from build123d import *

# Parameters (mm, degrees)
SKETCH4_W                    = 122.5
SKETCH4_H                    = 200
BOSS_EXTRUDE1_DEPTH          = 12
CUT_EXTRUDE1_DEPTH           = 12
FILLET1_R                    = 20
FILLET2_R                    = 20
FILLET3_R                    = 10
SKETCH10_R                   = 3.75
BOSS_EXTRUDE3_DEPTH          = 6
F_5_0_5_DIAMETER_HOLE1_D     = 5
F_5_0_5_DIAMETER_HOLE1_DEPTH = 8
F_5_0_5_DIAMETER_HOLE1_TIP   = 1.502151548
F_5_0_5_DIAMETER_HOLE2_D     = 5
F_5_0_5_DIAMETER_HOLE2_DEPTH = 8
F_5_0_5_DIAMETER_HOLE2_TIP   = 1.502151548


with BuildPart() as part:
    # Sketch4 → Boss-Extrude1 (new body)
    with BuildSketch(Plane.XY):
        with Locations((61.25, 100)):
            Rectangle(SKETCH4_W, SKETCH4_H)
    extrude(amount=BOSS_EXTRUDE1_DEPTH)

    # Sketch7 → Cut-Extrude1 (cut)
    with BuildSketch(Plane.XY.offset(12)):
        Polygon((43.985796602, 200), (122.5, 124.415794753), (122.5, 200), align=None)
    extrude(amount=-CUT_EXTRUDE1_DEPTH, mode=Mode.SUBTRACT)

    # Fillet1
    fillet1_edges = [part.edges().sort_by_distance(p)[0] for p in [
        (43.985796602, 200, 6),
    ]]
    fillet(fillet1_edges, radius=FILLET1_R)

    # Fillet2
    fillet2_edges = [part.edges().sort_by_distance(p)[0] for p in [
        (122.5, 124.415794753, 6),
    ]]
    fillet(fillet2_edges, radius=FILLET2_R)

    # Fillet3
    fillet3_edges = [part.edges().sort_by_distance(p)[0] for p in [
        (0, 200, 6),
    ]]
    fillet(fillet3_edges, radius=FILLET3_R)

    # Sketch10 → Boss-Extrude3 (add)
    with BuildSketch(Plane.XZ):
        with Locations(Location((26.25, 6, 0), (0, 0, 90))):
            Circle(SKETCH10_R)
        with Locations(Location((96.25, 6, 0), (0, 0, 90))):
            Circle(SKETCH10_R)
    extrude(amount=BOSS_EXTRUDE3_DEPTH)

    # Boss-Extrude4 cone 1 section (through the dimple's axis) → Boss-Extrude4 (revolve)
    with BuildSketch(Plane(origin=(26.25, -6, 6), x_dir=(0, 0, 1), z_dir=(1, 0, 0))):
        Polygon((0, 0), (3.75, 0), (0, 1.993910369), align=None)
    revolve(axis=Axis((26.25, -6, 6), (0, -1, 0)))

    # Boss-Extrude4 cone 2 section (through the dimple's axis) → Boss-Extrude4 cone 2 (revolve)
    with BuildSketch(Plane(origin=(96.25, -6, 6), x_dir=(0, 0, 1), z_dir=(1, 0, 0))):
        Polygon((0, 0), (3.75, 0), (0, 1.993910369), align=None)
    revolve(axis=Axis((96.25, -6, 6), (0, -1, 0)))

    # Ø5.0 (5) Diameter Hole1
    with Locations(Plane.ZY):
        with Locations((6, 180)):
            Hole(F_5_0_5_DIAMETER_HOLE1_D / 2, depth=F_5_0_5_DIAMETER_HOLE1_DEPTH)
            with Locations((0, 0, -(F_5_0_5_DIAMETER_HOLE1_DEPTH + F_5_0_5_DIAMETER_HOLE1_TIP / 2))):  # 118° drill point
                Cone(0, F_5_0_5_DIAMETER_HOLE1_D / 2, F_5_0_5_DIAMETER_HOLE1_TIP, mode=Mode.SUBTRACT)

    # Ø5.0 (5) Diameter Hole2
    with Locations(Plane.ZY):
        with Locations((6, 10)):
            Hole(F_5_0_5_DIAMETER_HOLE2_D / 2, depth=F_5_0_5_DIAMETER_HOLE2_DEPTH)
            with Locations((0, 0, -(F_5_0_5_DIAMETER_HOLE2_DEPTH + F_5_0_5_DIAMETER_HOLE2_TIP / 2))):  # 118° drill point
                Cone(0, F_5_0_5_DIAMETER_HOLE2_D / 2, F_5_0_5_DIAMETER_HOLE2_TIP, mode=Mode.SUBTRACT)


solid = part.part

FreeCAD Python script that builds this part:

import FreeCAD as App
import Part
import Sketcher

V = App.Vector
Q = App.Units.Quantity


def edges_at(feature, points):
    """Names of the edges that pass closest to the given points."""
    edges = feature.Shape.Edges
    near = lambda p: min(range(len(edges)), key=lambda i: edges[i].distToShape(Part.Vertex(*p))[0])
    return sorted({f"Edge{near(p) + 1}" for p in points})


def add_polygon(sketch, points):
    """Adds a closed chain of lines whose ends are joined by coincident constraints."""
    first, n = sketch.GeometryCount, len(points)
    for a, b in zip(points, points[1:] + points[:1]):
        sketch.addGeometry(Part.LineSegment(App.Vector(*a, 0), App.Vector(*b, 0)), False)
    for i in range(n):
        sketch.addConstraint(Sketcher.Constraint("Coincident", first + i, 2, first + (i + 1) % n, 1))

doc = App.newDocument("Part")
body = doc.addObject("PartDesign::Body", "Body")

sketch1 = body.newObject("Sketcher::SketchObject", "Sketch")
sketch1.AttachmentSupport = (doc.getObject("XY_Plane"), [""])
sketch1.MapMode = "FlatFace"
add_polygon(sketch1, [(0, 200), (0, 0), (122, 0), (122, 200)])
sketch1.addConstraint([
    Sketcher.Constraint("Vertical", 0),
    Sketcher.Constraint("Horizontal", 1),
    Sketcher.Constraint("Vertical", 2),
    Sketcher.Constraint("Horizontal", 3),
    Sketcher.Constraint("Coincident", 0, 2, -1, 1),
    Sketcher.Constraint("DistanceY", 0, 2, 0, 1, Q("200 mm")),
    Sketcher.Constraint("DistanceX", 1, 1, 1, 2, Q("122.5 mm")),
])
pad1 = body.newObject("PartDesign::Pad", "Pad")
pad1.Profile = sketch1
pad1.Length = 12

sketch2 = body.newObject("Sketcher::SketchObject", "Sketch001")
sketch2.AttachmentSupport = (doc.getObject("XY_Plane"), [""])
sketch2.MapMode = "FlatFace"
sketch2.AttachmentOffset = App.Placement(V(0, 0, 12), App.Rotation())
add_polygon(sketch2, [(44, 200), (122, 124), (122, 200)])
sketch2.addConstraint([
    Sketcher.Constraint("Vertical", 1),
    Sketcher.Constraint("Horizontal", 2),
    Sketcher.Constraint("DistanceY", -1, 1, 1, 2, Q("200 mm")),
    Sketcher.Constraint("DistanceX", -1, 1, 0, 2, Q("122.5 mm")),
    Sketcher.Constraint("DistanceX", 2, 2, 2, 1, Q("78.514203 mm")),
    Sketcher.Constraint("DistanceY", 1, 1, 1, 2, Q("75.584205 mm")),
])
pocket1 = body.newObject("PartDesign::Pocket", "Pocket")
pocket1.Profile = sketch2
pocket1.Length = 12
doc.recompute()

fillet = body.newObject("PartDesign::Fillet", "Fillet")
fillet.Base = (pocket1, edges_at(pocket1, [(43.986, 200, 6)]))
fillet.Radius = 20
doc.recompute()

fillet2 = body.newObject("PartDesign::Fillet", "Fillet001")
fillet2.Base = (fillet, edges_at(fillet, [(122.5, 124.416, 6)]))
fillet2.Radius = 20
doc.recompute()

fillet3 = body.newObject("PartDesign::Fillet", "Fillet002")
fillet3.Base = (fillet2, edges_at(fillet2, [(0, 200, 6)]))
fillet3.Radius = 10

sketch3 = body.newObject("Sketcher::SketchObject", "Sketch002")
sketch3.AttachmentSupport = (doc.getObject("XZ_Plane"), [""])
sketch3.MapMode = "FlatFace"
sketch3.addGeometry([
    Part.Circle(V(26.2, 6, 0), V(0, 0, 1), 3.8),
    Part.Circle(V(96.2, 6, 0), V(0, 0, 1), 3.8),
], False)
sketch3.addConstraint([
    Sketcher.Constraint("Equal", 0, 1),
    Sketcher.Constraint("Horizontal", 0, 3, 1, 3),
    Sketcher.Constraint("Diameter", 0, Q("7.5 mm")),
    Sketcher.Constraint("DistanceY", -1, 1, 0, 3, Q("6 mm")),
    Sketcher.Constraint("DistanceX", 0, 3, 1, 3, Q("70 mm")),
    Sketcher.Constraint("DistanceX", -1, 1, 0, 3, Q("26.25 mm")),
])
pad2 = body.newObject("PartDesign::Pad", "Pad001")
pad2.Profile = sketch3
pad2.Length = 6

sketch4 = body.newObject("Sketcher::SketchObject", "Sketch003")
sketch4.AttachmentSupport = (doc.getObject("YZ_Plane"), [""])
sketch4.MapMode = "FlatFace"
sketch4.AttachmentOffset = App.Placement(V(0, 0, 26.25), App.Rotation())
add_polygon(sketch4, [(-6, 6), (-6, 9.8), (-8, 6)])
sketch4.addGeometry(Part.LineSegment(V(-6, 6, 0), V(-8, 6, 0)), True)
sketch4.addConstraint([
    Sketcher.Constraint("Vertical", 0),
    Sketcher.Constraint("Horizontal", 2),
    Sketcher.Constraint("Horizontal", 3),
    Sketcher.Constraint("Coincident", 3, 1, 2, 2),
    Sketcher.Constraint("Equal", 2, 3),
    Sketcher.Constraint("Angle", 1, Q("-118 deg")),
    Sketcher.Constraint("DistanceX", 0, 2, -1, 1, Q("6 mm")),
    Sketcher.Constraint("DistanceY", -1, 1, 1, 2, Q("6 mm")),
    Sketcher.Constraint("DistanceY", 0, 1, 0, 2, Q("3.75 mm")),
])
revolution = body.newObject("PartDesign::Revolution", "Revolution")
revolution.Profile = sketch4
revolution.ReferenceAxis = (sketch4, ["Axis0"])
revolution.Angle = 360

sketch5 = body.newObject("Sketcher::SketchObject", "Sketch004")
sketch5.AttachmentSupport = (doc.getObject("YZ_Plane"), [""])
sketch5.MapMode = "FlatFace"
sketch5.AttachmentOffset = App.Placement(V(0, 0, 96.25), App.Rotation())
add_polygon(sketch5, [(-6, 6), (-6, 9.8), (-8, 6)])
sketch5.addGeometry(Part.LineSegment(V(-6, 6, 0), V(-8, 6, 0)), True)
sketch5.addConstraint([
    Sketcher.Constraint("Vertical", 0),
    Sketcher.Constraint("Horizontal", 2),
    Sketcher.Constraint("Horizontal", 3),
    Sketcher.Constraint("Coincident", 3, 1, 2, 2),
    Sketcher.Constraint("Equal", 2, 3),
    Sketcher.Constraint("Angle", 1, Q("-118 deg")),
    Sketcher.Constraint("DistanceX", 0, 2, -1, 1, Q("6 mm")),
    Sketcher.Constraint("DistanceY", -1, 1, 1, 2, Q("6 mm")),
    Sketcher.Constraint("DistanceY", 0, 1, 0, 2, Q("3.75 mm")),
])
revolution2 = body.newObject("PartDesign::Revolution", "Revolution001")
revolution2.Profile = sketch5
revolution2.ReferenceAxis = (sketch5, ["Axis0"])
revolution2.Angle = 360

sketch6 = body.newObject("Sketcher::SketchObject", "Sketch005")
sketch6.AttachmentSupport = (doc.getObject("YZ_Plane"), [""])
sketch6.MapMode = "FlatFace"
sketch6.addGeometry(Part.Circle(V(180, 6, 0), V(0, 0, 1), 2.5), False)
sketch6.addConstraint([
    Sketcher.Constraint("Diameter", 0, Q("5 mm")),
    Sketcher.Constraint("DistanceX", -1, 1, 0, 3, Q("180 mm")),
    Sketcher.Constraint("DistanceY", -1, 1, 0, 3, Q("6 mm")),
])
doc.recompute()
hole = body.newObject("PartDesign::Hole", "Hole")
hole.Profile = sketch6
hole.ThreadType = "None"
hole.Diameter = 5
hole.DepthType = "Dimension"
hole.Depth = 8
hole.DrillPoint = "Angled"
hole.DrillPointAngle = 118
hole.Reversed = True

sketch7 = body.newObject("Sketcher::SketchObject", "Sketch006")
sketch7.AttachmentSupport = (doc.getObject("YZ_Plane"), [""])
sketch7.MapMode = "FlatFace"
sketch7.addGeometry(Part.Circle(V(10, 6, 0), V(0, 0, 1), 2.5), False)
sketch7.addConstraint([
    Sketcher.Constraint("Diameter", 0, Q("5 mm")),
    Sketcher.Constraint("DistanceX", -1, 1, 0, 3, Q("10 mm")),
    Sketcher.Constraint("DistanceY", -1, 1, 0, 3, Q("6 mm")),
])
doc.recompute()
hole2 = body.newObject("PartDesign::Hole", "Hole001")
hole2.Profile = sketch7
hole2.ThreadType = "None"
hole2.Diameter = 5
hole2.DepthType = "Dimension"
hole2.Depth = 8
hole2.DrillPoint = "Angled"
hole2.DrillPointAngle = 118
hole2.Reversed = True

doc.recompute()
